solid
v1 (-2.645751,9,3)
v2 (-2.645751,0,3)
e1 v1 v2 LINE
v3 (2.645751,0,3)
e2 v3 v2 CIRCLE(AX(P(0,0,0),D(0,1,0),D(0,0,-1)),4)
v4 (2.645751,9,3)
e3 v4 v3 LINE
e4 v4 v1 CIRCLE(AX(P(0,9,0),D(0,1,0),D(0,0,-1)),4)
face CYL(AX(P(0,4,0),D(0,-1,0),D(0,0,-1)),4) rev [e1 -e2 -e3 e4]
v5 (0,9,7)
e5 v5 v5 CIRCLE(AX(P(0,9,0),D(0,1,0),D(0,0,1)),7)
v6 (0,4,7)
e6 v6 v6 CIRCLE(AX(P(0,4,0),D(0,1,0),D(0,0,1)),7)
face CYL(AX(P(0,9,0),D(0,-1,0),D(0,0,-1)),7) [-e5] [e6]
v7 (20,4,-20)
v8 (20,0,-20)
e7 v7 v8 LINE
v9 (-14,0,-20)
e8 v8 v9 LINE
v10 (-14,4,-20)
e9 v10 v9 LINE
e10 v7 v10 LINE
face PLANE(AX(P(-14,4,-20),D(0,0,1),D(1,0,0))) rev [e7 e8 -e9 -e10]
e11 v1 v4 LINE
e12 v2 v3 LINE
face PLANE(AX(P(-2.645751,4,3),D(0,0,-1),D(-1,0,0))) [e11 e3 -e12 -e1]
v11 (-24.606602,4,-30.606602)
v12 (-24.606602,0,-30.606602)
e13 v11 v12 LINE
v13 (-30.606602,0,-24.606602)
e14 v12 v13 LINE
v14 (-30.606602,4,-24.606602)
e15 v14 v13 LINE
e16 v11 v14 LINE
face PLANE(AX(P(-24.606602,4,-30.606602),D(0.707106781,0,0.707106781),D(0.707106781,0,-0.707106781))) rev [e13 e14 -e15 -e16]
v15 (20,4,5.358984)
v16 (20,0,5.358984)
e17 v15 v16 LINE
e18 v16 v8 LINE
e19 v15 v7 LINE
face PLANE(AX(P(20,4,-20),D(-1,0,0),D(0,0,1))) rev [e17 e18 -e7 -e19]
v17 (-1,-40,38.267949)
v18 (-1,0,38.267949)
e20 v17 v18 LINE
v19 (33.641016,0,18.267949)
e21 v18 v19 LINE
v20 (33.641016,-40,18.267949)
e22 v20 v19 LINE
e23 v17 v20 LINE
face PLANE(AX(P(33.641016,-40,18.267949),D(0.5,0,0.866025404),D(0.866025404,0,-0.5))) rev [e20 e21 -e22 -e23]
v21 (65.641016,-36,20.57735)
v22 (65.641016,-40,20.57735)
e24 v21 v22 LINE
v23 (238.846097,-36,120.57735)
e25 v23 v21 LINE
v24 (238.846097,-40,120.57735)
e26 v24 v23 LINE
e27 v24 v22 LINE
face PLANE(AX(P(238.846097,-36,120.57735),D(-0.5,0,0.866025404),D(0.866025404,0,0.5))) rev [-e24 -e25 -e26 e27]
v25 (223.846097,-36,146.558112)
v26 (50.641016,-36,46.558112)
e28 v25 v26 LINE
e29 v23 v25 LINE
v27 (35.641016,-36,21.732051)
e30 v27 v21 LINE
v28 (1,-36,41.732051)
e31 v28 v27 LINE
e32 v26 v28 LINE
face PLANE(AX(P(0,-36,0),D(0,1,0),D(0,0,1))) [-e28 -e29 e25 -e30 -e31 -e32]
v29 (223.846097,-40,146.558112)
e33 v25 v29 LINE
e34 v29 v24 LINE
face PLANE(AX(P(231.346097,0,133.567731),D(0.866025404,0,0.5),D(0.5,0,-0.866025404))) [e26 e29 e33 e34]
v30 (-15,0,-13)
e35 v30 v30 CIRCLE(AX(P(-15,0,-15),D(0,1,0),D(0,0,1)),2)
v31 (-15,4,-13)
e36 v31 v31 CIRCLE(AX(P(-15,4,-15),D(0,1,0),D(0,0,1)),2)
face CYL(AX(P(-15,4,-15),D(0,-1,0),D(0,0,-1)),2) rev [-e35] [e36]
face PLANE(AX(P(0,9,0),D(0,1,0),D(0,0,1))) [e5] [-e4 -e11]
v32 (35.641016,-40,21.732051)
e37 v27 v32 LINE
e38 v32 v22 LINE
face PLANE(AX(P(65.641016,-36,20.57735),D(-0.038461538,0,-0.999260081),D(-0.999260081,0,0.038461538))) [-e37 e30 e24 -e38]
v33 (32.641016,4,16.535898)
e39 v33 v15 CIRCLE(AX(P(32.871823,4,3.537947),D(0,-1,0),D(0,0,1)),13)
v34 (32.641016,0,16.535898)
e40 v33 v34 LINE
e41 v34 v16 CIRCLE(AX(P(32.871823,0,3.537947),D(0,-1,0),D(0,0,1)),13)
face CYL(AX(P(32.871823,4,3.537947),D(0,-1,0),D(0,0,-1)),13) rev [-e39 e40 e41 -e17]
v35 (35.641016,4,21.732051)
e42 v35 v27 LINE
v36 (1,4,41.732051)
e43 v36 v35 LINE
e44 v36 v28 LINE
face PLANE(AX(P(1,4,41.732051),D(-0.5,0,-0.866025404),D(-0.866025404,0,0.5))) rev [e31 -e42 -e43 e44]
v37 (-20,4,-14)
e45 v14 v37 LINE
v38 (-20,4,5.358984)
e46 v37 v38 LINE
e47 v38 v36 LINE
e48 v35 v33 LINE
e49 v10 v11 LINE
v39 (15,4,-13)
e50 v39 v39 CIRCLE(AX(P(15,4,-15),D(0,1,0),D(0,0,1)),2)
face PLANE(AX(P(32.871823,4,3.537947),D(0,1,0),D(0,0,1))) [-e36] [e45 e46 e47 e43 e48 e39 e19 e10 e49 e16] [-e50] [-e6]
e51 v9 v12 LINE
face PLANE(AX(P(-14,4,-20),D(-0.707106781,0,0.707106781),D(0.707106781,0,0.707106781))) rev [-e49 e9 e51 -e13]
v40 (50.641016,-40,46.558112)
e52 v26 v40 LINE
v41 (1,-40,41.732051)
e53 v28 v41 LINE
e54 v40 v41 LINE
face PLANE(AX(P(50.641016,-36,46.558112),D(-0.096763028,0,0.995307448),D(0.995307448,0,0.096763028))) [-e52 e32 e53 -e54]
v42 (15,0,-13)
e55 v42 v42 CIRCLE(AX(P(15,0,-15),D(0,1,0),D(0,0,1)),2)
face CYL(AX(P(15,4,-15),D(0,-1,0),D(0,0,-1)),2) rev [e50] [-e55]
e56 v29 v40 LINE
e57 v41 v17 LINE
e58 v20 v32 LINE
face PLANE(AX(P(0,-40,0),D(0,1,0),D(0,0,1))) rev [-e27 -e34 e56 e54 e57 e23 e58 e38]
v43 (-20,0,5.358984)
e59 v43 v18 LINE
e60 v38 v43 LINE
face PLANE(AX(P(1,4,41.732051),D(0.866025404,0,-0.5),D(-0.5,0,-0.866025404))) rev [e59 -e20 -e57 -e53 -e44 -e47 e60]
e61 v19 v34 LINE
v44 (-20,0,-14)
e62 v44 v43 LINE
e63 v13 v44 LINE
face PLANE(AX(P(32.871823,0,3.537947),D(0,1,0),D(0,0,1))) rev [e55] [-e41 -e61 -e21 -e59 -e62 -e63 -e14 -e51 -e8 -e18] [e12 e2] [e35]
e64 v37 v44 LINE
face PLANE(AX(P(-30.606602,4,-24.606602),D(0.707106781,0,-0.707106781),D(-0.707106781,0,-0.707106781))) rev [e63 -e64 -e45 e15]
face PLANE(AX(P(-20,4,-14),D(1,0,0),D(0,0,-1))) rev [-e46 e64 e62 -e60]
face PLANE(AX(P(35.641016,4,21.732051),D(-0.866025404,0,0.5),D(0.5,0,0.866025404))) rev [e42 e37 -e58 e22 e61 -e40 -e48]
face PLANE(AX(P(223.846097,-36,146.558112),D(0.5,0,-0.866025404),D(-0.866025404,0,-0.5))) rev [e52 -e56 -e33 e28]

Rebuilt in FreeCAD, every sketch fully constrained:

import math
import FreeCAD as App
import Part
import Sketcher

V = App.Vector
Q = App.Units.Quantity

doc = App.newDocument("Part")
body = doc.addObject("PartDesign::Body", "Body")

# Sketch on XZ plane
sketch1 = doc.addObject("Sketcher::SketchObject", "Sketch")
body.addObject(sketch1)
sketch1.AttachmentSupport = (doc.XZ_Plane, [""])
sketch1.MapMode = "FlatFace"
sketch1.addGeometry(Part.LineSegment(V(1, 41.7, 0), V(35.6, 21.7, 0)), False)
sketch1.addGeometry(Part.LineSegment(V(35.6, 21.7, 0), V(32.6, 16.5, 0)), False)
sketch1.addGeometry(Part.ArcOfCircle(Part.Circle(V(32.9, 3.5, 0), V(0, 0, 1), 13), math.radians(91), math.radians(172)), False)
sketch1.addGeometry(Part.LineSegment(V(20, 5.4, 0), V(20, -20, 0)), False)
sketch1.addGeometry(Part.LineSegment(V(20, -20, 0), V(-14, -20, 0)), False)
sketch1.addGeometry(Part.LineSegment(V(-14, -20, 0), V(-24.6, -30.6, 0)), False)
sketch1.addGeometry(Part.LineSegment(V(-24.6, -30.6, 0), V(-30.6, -24.6, 0)), False)
sketch1.addGeometry(Part.LineSegment(V(-30.6, -24.6, 0), V(-20, -14, 0)), False)
sketch1.addGeometry(Part.LineSegment(V(-20, -14, 0), V(-20, 5.4, 0)), False)
sketch1.addGeometry(Part.LineSegment(V(-20, 5.4, 0), V(1, 41.7, 0)), False)
sketch1.addGeometry(Part.LineSegment(V(2.6, 3, 0), V(-2.6, 3, 0)), False)
sketch1.addGeometry(Part.ArcOfCircle(Part.Circle(V(0, 0, 0), V(0, 0, 1), 4), math.radians(131), math.radians(409)), False)
sketch1.addGeometry(Part.Circle(V(-15, -15, 0), V(0, 0, 1), 2), False)
sketch1.addGeometry(Part.Circle(V(15, -15, 0), V(0, 0, 1), 2), False)
sketch1.addConstraint(Sketcher.Constraint("Coincident", 0, 2, 1, 1))
sketch1.addConstraint(Sketcher.Constraint("Coincident", 1, 2, 2, 1))
sketch1.addConstraint(Sketcher.Constraint("Coincident", 2, 2, 3, 1))
sketch1.addConstraint(Sketcher.Constraint("Coincident", 3, 2, 4, 1))
sketch1.addConstraint(Sketcher.Constraint("Coincident", 4, 2, 5, 1))
sketch1.addConstraint(Sketcher.Constraint("Coincident", 5, 2, 6, 1))
sketch1.addConstraint(Sketcher.Constraint("Coincident", 6, 2, 7, 1))
sketch1.addConstraint(Sketcher.Constraint("Coincident", 7, 2, 8, 1))
sketch1.addConstraint(Sketcher.Constraint("Coincident", 8, 2, 9, 1))
sketch1.addConstraint(Sketcher.Constraint("Coincident", 9, 2, 0, 1))
sketch1.addConstraint(Sketcher.Constraint("Coincident", 10, 1, 11, 2))
sketch1.addConstraint(Sketcher.Constraint("Coincident", 11, 1, 10, 2))
sketch1.addConstraint(Sketcher.Constraint("Vertical", 3))
sketch1.addConstraint(Sketcher.Constraint("Horizontal", 4))
sketch1.addConstraint(Sketcher.Constraint("Vertical", 8))
sketch1.addConstraint(Sketcher.Constraint("Horizontal", 10))
sketch1.addConstraint(Sketcher.Constraint("Coincident", 11, 3, -1, 1))
sketch1.addConstraint(Sketcher.Constraint("Equal", 12, 13))
sketch1.addConstraint(Sketcher.Constraint("Symmetric", 12, 3, 13, 3, -2))
sketch1.addConstraint(Sketcher.Constraint("Symmetric", 2, 2, 8, 2, -2))
sketch1.addConstraint(Sketcher.Constraint("Perpendicular", 0, 1))
sketch1.addConstraint(Sketcher.Constraint("Perpendicular", 5, 6))
sketch1.addConstraint(Sketcher.Constraint("Perpendicular", 6, 7))
sketch1.addConstraint(Sketcher.Constraint("Parallel", 1, 9))
sketch1.addConstraint(Sketcher.Constraint("Equal", 5, 7))
sketch1.addConstraint(Sketcher.Constraint("Diameter", 12, 4.0))
sketch1.addConstraint(Sketcher.Constraint("Radius", 2, 13.0))
sketch1.addConstraint(Sketcher.Constraint("Radius", 11, 4.0))
sketch1.addConstraint(Sketcher.Constraint("DistanceX", 4, 2, 4, 1, 34.0))
sketch1.addConstraint(Sketcher.Constraint("Angle", 0, Q("-30 deg")))
sketch1.addConstraint(Sketcher.Constraint("Angle", 5, Q("-135 deg")))
sketch1.addConstraint(Sketcher.Constraint("Distance", 0, 40.0))
sketch1.addConstraint(Sketcher.Constraint("Distance", 1, 6.0))
sketch1.addConstraint(Sketcher.Constraint("Distance", 5, 15.0))
sketch1.addConstraint(Sketcher.Constraint("Distance", 9, 42.0))
sketch1.addConstraint(Sketcher.Constraint("DistanceX", 12, 3, -1, 1, 15.0))
sketch1.addConstraint(Sketcher.Constraint("DistanceY", 12, 3, -1, 1, 15.0))
sketch1.addConstraint(Sketcher.Constraint("DistanceX", -1, 1, 2, 2, 20.0))
sketch1.addConstraint(Sketcher.Constraint("DistanceY", 3, 2, -1, 1, 20.0))
sketch1.addConstraint(Sketcher.Constraint("DistanceY", -1, 1, 10, 1, 3.0))
sketch1.addConstraint(Sketcher.Constraint("DistanceY", -1, 1, 1, 2, 16.535898))
pad1 = doc.addObject("PartDesign::Pad", "Pad")
body.addObject(pad1)
pad1.Profile = sketch1
pad1.Length = 4
pad1.Reversed = True

# Sketch on XZ plane
sketch2 = doc.addObject("Sketcher::SketchObject", "Sketch001")
body.addObject(sketch2)
sketch2.AttachmentSupport = (doc.XZ_Plane, [""])
sketch2.MapMode = "FlatFace"
sketch2.AttachmentOffset = App.Placement(V(0, 0, -4), App.Rotation())
sketch2.addGeometry(Part.Circle(V(0, 0, 0), V(0, 0, 1), 7), False)
sketch2.addGeometry(Part.LineSegment(V(2.6, 3, 0), V(-2.6, 3, 0)), False)
sketch2.addGeometry(Part.ArcOfCircle(Part.Circle(V(0, 0, 0), V(0, 0, 1), 4), math.radians(131), math.radians(409)), False)
sketch2.addConstraint(Sketcher.Constraint("Coincident", 1, 1, 2, 2))
sketch2.addConstraint(Sketcher.Constraint("Coincident", 2, 1, 1, 2))
sketch2.addConstraint(Sketcher.Constraint("Horizontal", 1))
sketch2.addConstraint(Sketcher.Constraint("Coincident", 0, 3, -1, 1))
sketch2.addConstraint(Sketcher.Constraint("Coincident", 2, 3, -1, 1))
sketch2.addConstraint(Sketcher.Constraint("Diameter", 0, 14.0))
sketch2.addConstraint(Sketcher.Constraint("Radius", 2, 4.0))
sketch2.addConstraint(Sketcher.Constraint("DistanceY", -1, 1, 1, 1, 3.0))
pad2 = doc.addObject("PartDesign::Pad", "Pad001")
body.addObject(pad2)
pad2.Profile = sketch2
pad2.Length = 5
pad2.Reversed = True

# Sketch on XZ plane
sketch3 = doc.addObject("Sketcher::SketchObject", "Sketch002")
body.addObject(sketch3)
sketch3.AttachmentSupport = (doc.XZ_Plane, [""])
sketch3.MapMode = "FlatFace"
sketch3.addGeometry(Part.LineSegment(V(35.6, 21.7, 0), V(1, 41.7, 0)), False)
sketch3.addGeometry(Part.LineSegment(V(1, 41.7, 0), V(-1, 38.3, 0)), False)
sketch3.addGeometry(Part.LineSegment(V(-1, 38.3, 0), V(33.6, 18.3, 0)), False)
sketch3.addGeometry(Part.LineSegment(V(33.6, 18.3, 0), V(35.6, 21.7, 0)), False)
sketch3.addConstraint(Sketcher.Constraint("Coincident", 0, 2, 1, 1))
sketch3.addConstraint(Sketcher.Constraint("Coincident", 1, 2, 2, 1))
sketch3.addConstraint(Sketcher.Constraint("Coincident", 2, 2, 3, 1))
sketch3.addConstraint(Sketcher.Constraint("Coincident", 3, 2, 0, 1))
sketch3.addConstraint(Sketcher.Constraint("Perpendicular", 0, 1))
sketch3.addConstraint(Sketcher.Constraint("Perpendicular", 1, 2))
sketch3.addConstraint(Sketcher.Constraint("Perpendicular", 2, 3))
sketch3.addConstraint(Sketcher.Constraint("Angle", 0, Q("150 deg")))
sketch3.addConstraint(Sketcher.Constraint("Distance", 0, 40.0))
sketch3.addConstraint(Sketcher.Constraint("Distance", 1, 4.0))
sketch3.addConstraint(Sketcher.Constraint("DistanceX", -1, 1, 0, 2, 1.0))
sketch3.addConstraint(Sketcher.Constraint("DistanceY", -1, 1, 0, 2, 41.732051))
pad3 = doc.addObject("PartDesign::Pad", "Pad002")
body.addObject(pad3)
pad3.Profile = sketch3
pad3.Length = 40

# Sketch on XZ plane
sketch4 = doc.addObject("Sketcher::SketchObject", "Sketch003")
body.addObject(sketch4)
sketch4.AttachmentSupport = (doc.XZ_Plane, [""])
sketch4.MapMode = "FlatFace"
sketch4.AttachmentOffset = App.Placement(V(0, 0, 40), App.Rotation())
sketch4.addGeometry(Part.LineSegment(V(66, 21, 0), V(51, 47, 0)), False)
sketch4.addGeometry(Part.LineSegment(V(51, 47, 0), V(1, 42, 0)), False)
sketch4.addGeometry(Part.LineSegment(V(1, 42, 0), V(36, 22, 0)), False)
sketch4.addGeometry(Part.LineSegment(V(36, 22, 0), V(66, 21, 0)), False)
sketch4.addConstraint(Sketcher.Constraint("Coincident", 0, 2, 1, 1))
sketch4.addConstraint(Sketcher.Constraint("Coincident", 1, 2, 2, 1))
sketch4.addConstraint(Sketcher.Constraint("Coincident", 2, 2, 3, 1))
sketch4.addConstraint(Sketcher.Constraint("Coincident", 3, 2, 0, 1))
sketch4.addConstraint(Sketcher.Constraint("Angle", 0, Q("120 deg")))
sketch4.addConstraint(Sketcher.Constraint("Angle", 2, Q("-30 deg")))
sketch4.addConstraint(Sketcher.Constraint("Distance", 0, 30.0))
sketch4.addConstraint(Sketcher.Constraint("Distance", 2, 40.0))
sketch4.addConstraint(Sketcher.Constraint("DistanceX", -1, 1, 1, 2, 1.0))
sketch4.addConstraint(Sketcher.Constraint("DistanceX", 2, 2, 0, 2, 15.0))
sketch4.addConstraint(Sketcher.Constraint("DistanceY", 3, 2, 2, 2, 1.154701))
sketch4.addConstraint(Sketcher.Constraint("DistanceY", -1, 1, 1, 2, 41.732051))
pad4 = doc.addObject("PartDesign::Pad", "Pad003")
body.addObject(pad4)
pad4.Profile = sketch4
pad4.Length = 4
pad4.Reversed = True

# Sketch on an angled plane
sketch5 = doc.addObject("Sketcher::SketchObject", "Sketch004")
body.addObject(sketch5)
sketch5.Placement = App.Placement(V(58.141016, 0, 33.567731), App.Rotation(V(0.5, 0, -0.866025404), V(0, 1, 0), V(0.866025404, 0, 0.5), "ZXY"))
sketch5.addGeometry(Part.LineSegment(V(-15, -36, 0), V(-15, -40, 0)), False)
sketch5.addGeometry(Part.LineSegment(V(-15, -40, 0), V(15, -40, 0)), False)
sketch5.addGeometry(Part.LineSegment(V(15, -40, 0), V(15, -36, 0)), False)
sketch5.addGeometry(Part.LineSegment(V(15, -36, 0), V(-15, -36, 0)), False)
sketch5.addConstraint(Sketcher.Constraint("Coincident", 0, 2, 1, 1))
sketch5.addConstraint(Sketcher.Constraint("Coincident", 1, 2, 2, 1))
sketch5.addConstraint(Sketcher.Constraint("Coincident", 2, 2, 3, 1))
sketch5.addConstraint(Sketcher.Constraint("Coincident", 3, 2, 0, 1))
sketch5.addConstraint(Sketcher.Constraint("Vertical", 0))
sketch5.addConstraint(Sketcher.Constraint("Horizontal", 1))
sketch5.addConstraint(Sketcher.Constraint("Vertical", 2))
sketch5.addConstraint(Sketcher.Constraint("Horizontal", 3))
sketch5.addConstraint(Sketcher.Constraint("DistanceX", 1, 1, 1, 2, 30.0))
sketch5.addConstraint(Sketcher.Constraint("DistanceY", 0, 2, 0, 1, 4.0))
sketch5.addConstraint(Sketcher.Constraint("DistanceX", 0, 2, -1, 1, 15.0))
sketch5.addConstraint(Sketcher.Constraint("DistanceY", 0, 2, -1, 1, 40.0))
pad5 = doc.addObject("PartDesign::Pad", "Pad004")
body.addObject(pad5)
pad5.Profile = sketch5
pad5.Length = 200

doc.recompute()
